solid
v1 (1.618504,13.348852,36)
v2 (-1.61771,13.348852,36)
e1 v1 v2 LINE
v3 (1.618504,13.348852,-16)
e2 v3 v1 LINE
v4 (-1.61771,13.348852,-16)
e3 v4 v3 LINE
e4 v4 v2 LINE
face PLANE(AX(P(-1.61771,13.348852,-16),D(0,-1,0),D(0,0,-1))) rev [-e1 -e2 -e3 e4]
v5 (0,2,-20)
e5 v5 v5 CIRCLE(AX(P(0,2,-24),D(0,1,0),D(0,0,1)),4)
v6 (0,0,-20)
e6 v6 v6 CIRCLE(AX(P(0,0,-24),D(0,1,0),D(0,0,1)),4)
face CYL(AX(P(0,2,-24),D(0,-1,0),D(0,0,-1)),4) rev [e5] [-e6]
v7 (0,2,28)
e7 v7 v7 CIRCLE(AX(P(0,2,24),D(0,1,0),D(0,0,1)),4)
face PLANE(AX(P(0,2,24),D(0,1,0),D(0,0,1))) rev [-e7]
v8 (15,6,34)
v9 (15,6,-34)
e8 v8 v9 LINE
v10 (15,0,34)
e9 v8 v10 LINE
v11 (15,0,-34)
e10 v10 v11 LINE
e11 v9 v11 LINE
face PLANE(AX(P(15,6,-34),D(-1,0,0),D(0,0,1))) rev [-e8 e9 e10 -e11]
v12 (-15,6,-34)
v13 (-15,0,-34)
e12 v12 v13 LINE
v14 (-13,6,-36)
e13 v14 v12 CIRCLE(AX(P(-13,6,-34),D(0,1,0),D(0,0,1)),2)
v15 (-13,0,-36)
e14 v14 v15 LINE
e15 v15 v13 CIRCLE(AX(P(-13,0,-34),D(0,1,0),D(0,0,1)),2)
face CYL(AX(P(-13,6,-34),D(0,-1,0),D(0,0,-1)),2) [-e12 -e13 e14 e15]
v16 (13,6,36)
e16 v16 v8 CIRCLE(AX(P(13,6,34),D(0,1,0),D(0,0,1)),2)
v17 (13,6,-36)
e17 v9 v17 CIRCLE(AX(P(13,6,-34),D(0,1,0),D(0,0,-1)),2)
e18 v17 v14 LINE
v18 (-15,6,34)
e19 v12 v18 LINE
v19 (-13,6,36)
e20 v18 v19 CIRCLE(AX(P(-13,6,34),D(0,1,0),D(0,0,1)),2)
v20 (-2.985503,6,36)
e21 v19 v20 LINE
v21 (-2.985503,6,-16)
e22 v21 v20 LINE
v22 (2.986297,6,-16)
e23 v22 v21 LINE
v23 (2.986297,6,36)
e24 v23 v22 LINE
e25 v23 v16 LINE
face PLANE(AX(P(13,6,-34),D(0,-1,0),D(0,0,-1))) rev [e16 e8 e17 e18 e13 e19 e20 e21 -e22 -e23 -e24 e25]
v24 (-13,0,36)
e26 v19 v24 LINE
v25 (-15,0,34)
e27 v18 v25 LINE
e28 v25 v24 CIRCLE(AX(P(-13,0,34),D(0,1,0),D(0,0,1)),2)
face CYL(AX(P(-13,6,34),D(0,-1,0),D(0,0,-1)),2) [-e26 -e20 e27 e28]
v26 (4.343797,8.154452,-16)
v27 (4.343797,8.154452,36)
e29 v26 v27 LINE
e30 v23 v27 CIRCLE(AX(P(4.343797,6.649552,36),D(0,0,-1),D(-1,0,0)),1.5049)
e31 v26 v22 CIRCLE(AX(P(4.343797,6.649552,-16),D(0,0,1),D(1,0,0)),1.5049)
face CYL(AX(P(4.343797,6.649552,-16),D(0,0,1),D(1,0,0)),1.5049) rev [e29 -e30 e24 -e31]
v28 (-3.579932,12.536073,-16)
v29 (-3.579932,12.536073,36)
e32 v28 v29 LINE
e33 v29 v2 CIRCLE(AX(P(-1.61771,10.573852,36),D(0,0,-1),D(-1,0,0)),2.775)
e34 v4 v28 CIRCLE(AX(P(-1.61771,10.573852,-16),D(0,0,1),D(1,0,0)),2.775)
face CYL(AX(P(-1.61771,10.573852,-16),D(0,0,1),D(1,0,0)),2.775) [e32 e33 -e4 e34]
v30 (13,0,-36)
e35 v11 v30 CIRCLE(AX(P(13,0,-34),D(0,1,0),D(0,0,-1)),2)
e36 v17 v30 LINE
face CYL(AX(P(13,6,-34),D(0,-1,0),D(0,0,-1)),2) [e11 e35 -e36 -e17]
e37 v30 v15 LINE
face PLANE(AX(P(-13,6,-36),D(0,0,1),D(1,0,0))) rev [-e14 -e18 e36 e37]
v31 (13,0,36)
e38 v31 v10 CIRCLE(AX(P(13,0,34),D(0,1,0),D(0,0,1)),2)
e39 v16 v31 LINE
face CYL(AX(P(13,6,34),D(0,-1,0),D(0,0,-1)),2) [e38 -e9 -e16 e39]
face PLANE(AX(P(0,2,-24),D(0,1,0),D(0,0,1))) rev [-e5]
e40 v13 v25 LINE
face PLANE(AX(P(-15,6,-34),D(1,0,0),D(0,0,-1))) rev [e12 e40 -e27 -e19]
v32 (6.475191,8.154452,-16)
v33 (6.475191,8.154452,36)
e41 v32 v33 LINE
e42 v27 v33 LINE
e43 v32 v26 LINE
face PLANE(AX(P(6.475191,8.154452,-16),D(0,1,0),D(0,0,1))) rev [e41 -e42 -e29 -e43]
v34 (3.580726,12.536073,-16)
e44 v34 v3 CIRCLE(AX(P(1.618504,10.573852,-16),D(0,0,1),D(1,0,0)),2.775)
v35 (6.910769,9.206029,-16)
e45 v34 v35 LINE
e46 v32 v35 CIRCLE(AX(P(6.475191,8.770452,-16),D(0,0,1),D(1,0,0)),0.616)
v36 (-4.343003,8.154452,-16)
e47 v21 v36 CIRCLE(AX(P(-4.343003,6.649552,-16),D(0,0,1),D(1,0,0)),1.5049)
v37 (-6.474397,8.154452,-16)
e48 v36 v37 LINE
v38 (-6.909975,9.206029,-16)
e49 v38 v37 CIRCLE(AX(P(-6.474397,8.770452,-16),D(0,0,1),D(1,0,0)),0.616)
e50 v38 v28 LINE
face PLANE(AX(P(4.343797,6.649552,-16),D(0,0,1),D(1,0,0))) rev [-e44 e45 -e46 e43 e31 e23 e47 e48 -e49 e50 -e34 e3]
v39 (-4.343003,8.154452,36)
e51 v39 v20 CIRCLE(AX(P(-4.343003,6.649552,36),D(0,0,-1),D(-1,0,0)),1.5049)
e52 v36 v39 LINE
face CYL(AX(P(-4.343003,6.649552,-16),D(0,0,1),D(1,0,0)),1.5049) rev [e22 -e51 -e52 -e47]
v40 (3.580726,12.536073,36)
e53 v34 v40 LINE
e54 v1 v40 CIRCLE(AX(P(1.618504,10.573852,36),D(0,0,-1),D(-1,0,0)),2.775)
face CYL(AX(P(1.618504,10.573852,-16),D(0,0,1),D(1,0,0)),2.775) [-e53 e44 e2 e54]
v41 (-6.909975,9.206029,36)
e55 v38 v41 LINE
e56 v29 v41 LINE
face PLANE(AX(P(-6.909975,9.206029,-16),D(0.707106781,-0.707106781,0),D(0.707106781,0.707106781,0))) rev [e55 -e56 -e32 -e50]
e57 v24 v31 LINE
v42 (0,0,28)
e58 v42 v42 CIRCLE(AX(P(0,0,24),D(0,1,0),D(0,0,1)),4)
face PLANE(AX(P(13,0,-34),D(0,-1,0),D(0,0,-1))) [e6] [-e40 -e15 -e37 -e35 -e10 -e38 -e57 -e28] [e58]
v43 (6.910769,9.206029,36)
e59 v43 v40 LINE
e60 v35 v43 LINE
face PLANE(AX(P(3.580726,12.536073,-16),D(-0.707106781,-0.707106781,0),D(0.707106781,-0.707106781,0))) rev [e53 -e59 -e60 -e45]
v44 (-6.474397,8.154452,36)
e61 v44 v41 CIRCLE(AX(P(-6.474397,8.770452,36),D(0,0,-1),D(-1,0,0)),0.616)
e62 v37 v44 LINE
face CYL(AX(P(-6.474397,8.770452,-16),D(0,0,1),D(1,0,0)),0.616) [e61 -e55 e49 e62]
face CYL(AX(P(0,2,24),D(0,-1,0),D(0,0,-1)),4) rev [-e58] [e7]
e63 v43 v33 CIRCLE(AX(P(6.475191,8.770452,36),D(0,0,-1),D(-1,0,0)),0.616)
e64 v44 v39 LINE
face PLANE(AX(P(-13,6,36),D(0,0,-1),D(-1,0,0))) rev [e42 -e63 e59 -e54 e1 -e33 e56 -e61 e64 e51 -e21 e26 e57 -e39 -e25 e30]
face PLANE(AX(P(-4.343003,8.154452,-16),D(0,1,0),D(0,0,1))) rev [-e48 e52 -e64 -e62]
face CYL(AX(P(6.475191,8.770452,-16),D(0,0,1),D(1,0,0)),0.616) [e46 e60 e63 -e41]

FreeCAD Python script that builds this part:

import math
import FreeCAD as App
import Part
import Sketcher

V = App.Vector

doc = App.newDocument("Part")
params = doc.addObject("Spreadsheet::Sheet", "Params")
for row, (alias, value) in enumerate([
    ("sketch1_radius", "2 mm"),
    ("sketch1_width", "26 mm"),
    ("sketch1_height", "68 mm"),
    ("pad1_length", "6 mm"),
    ("sketch2_diameter", "8 mm"),
    ("pocket1_length", "2 mm"),
    ("sketch3_height", "1.2 mm"),
    ("pad2_length", "36 mm"),
    ("pad2_length2", "16 mm"),
], start=1):
    params.set(f"A{row}", alias)
    params.set(f"B{row}", "=" + value)
    params.setAlias(f"B{row}", alias)

body = doc.addObject("PartDesign::Body", "Body")

sketch1 = body.newObject("Sketcher::SketchObject", "Sketch")
sketch1.AttachmentSupport = (doc.getObject("XZ_Plane"), [""])
sketch1.MapMode = "FlatFace"
sketch1.addGeometry([
    Part.LineSegment(V(13, -36, 0), V(-13, -36, 0)),
    Part.ArcOfCircle(Part.Circle(V(-13, -34, 0), V(0, 0, 1), 2), math.radians(-180), math.radians(-90)),
    Part.LineSegment(V(-15, -34, 0), V(-15, 34, 0)),
    Part.ArcOfCircle(Part.Circle(V(-13, 34, 0), V(0, 0, 1), 2), math.radians(90), math.radians(180)),
    Part.LineSegment(V(-13, 36, 0), V(13, 36, 0)),
    Part.ArcOfCircle(Part.Circle(V(13, 34, 0), V(0, 0, 1), 2), math.radians(0), math.radians(90)),
    Part.LineSegment(V(15, 34, 0), V(15, -34, 0)),
    Part.ArcOfCircle(Part.Circle(V(13, -34, 0), V(0, 0, 1), 2), math.radians(-90), math.radians(0)),
], False)
sketch1.addConstraint([
    Sketcher.Constraint("Tangent", 0, 2, 1, 2),
    Sketcher.Constraint("Tangent", 1, 1, 2, 1),
    Sketcher.Constraint("Tangent", 2, 2, 3, 2),
    Sketcher.Constraint("Tangent", 3, 1, 4, 1),
    Sketcher.Constraint("Tangent", 4, 2, 5, 2),
    Sketcher.Constraint("Tangent", 5, 1, 6, 1),
    Sketcher.Constraint("Tangent", 6, 2, 7, 2),
    Sketcher.Constraint("Tangent", 7, 1, 0, 1),
    Sketcher.Constraint("Horizontal", 0),
    Sketcher.Constraint("Vertical", 2),
    Sketcher.Constraint("Horizontal", 4),
    Sketcher.Constraint("Vertical", 6),
    Sketcher.Constraint("Equal", 1, 3),
    Sketcher.Constraint("Equal", 3, 5),
    Sketcher.Constraint("Equal", 5, 7),
    Sketcher.Constraint("Symmetric", 1, 3, 5, 3, -1, 1),
    Sketcher.Constraint("Radius", 1, 2.0),
    Sketcher.Constraint("DistanceX", 0, 2, 0, 1, 26.0),
    Sketcher.Constraint("DistanceY", 2, 1, 2, 2, 68.0),
])
sketch1.setExpression("Constraints[16]", "Params.sketch1_radius")
sketch1.setExpression("Constraints[17]", "Params.sketch1_width")
sketch1.setExpression("Constraints[18]", "Params.sketch1_height")
pad1 = body.newObject("PartDesign::Pad", "Pad")
pad1.Profile = sketch1
pad1.setExpression("Length", "Params.pad1_length")
pad1.Reversed = True

sketch2 = body.newObject("Sketcher::SketchObject", "Sketch001")
sketch2.AttachmentSupport = (doc.getObject("XZ_Plane"), [""])
sketch2.MapMode = "FlatFace"
sketch2.addGeometry([
    Part.Circle(V(0, -24, 0), V(0, 0, 1), 4),
    Part.Circle(V(0, 24, 0), V(0, 0, 1), 4),
], False)
sketch2.addConstraint([
    Sketcher.Constraint("Equal", 0, 1),
    Sketcher.Constraint("Symmetric", 0, 3, 1, 3, -1, 1),
    Sketcher.Constraint("PointOnObject", 0, 3, -2),
    Sketcher.Constraint("Diameter", 0, 8.0),
    Sketcher.Constraint("DistanceY", 0, 3, -1, 1, 24.0),
])
sketch2.setExpression("Constraints[3]", "Params.sketch2_diameter")
pocket1 = body.newObject("PartDesign::Pocket", "Pocket")
pocket1.Profile = sketch2
pocket1.setExpression("Length", "Params.pocket1_length")

sketch3 = body.newObject("Sketcher::SketchObject", "Sketch002")
sketch3.AttachmentSupport = (doc.getObject("XY_Plane"), [""])
sketch3.MapMode = "FlatFace"
sketch3.addGeometry([
    Part.LineSegment(V(-4.3, 5.1, 0), V(-10.9, 5.1, 0)),
    Part.LineSegment(V(-10.9, 5.1, 0), V(-10.9, 3.9, 0)),
    Part.LineSegment(V(-10.9, 3.9, 0), V(10.9, 3.9, 0)),
    Part.LineSegment(V(10.9, 3.9, 0), V(10.9, 5.1, 0)),
    Part.LineSegment(V(10.9, 5.1, 0), V(4.3, 5.1, 0)),
    Part.ArcOfCircle(Part.Circle(V(4.3, 6.6, 0), V(0, 0, 1), 1.5), math.radians(90), math.radians(270)),
    Part.LineSegment(V(4.3, 8.2, 0), V(6.5, 8.2, 0)),
    Part.ArcOfCircle(Part.Circle(V(6.5, 8.8, 0), V(0, 0, 1), 0.6), math.radians(-90), math.radians(45)),
    Part.LineSegment(V(6.9, 9.2, 0), V(3.6, 12.5, 0)),
    Part.ArcOfCircle(Part.Circle(V(1.6, 10.6, 0), V(0, 0, 1), 2.8), math.radians(45), math.radians(90)),
    Part.LineSegment(V(1.6, 13.3, 0), V(-1.6, 13.3, 0)),
    Part.ArcOfCircle(Part.Circle(V(-1.6, 10.6, 0), V(0, 0, 1), 2.8), math.radians(90), math.radians(135)),
    Part.LineSegment(V(-3.6, 12.5, 0), V(-6.9, 9.2, 0)),
    Part.ArcOfCircle(Part.Circle(V(-6.5, 8.8, 0), V(0, 0, 1), 0.6), math.radians(135), math.radians(270)),
    Part.LineSegment(V(-6.5, 8.2, 0), V(-4.3, 8.2, 0)),
    Part.ArcOfCircle(Part.Circle(V(-4.3, 6.6, 0), V(0, 0, 1), 1.5), math.radians(-90), math.radians(90)),
], False)
sketch3.addConstraint([
    Sketcher.Constraint("Coincident", 0, 2, 1, 1),
    Sketcher.Constraint("Coincident", 1, 2, 2, 1),
    Sketcher.Constraint("Coincident", 2, 2, 3, 1),
    Sketcher.Constraint("Coincident", 3, 2, 4, 1),
    Sketcher.Constraint("Tangent", 4, 2, 5, 2),
    Sketcher.Constraint("Tangent", 5, 1, 6, 1),
    Sketcher.Constraint("Tangent", 6, 2, 7, 1),
    Sketcher.Constraint("Tangent", 7, 2, 8, 1),
    Sketcher.Constraint("Tangent", 8, 2, 9, 1),
    Sketcher.Constraint("Tangent", 9, 2, 10, 1),
    Sketcher.Constraint("Tangent", 10, 2, 11, 1),
    Sketcher.Constraint("Tangent", 11, 2, 12, 1),
    Sketcher.Constraint("Tangent", 12, 2, 13, 1),
    Sketcher.Constraint("Tangent", 13, 2, 14, 1),
    Sketcher.Constraint("Tangent", 14, 2, 15, 2),
    Sketcher.Constraint("Tangent", 15, 1, 0, 1),
    Sketcher.Constraint("Horizontal", 0),
    Sketcher.Constraint("Vertical", 1),
    Sketcher.Constraint("Horizontal", 2),
    Sketcher.Constraint("Vertical", 3),
    Sketcher.Constraint("Horizontal", 4),
    Sketcher.Constraint("Horizontal", 6),
    Sketcher.Constraint("Horizontal", 10),
    Sketcher.Constraint("Horizontal", 14),
    Sketcher.Constraint("Equal", 9, 11),
    Sketcher.Constraint("Equal", 7, 13),
    Sketcher.Constraint("Equal", 5, 15),
    Sketcher.Constraint("Perpendicular", 8, 12),
    Sketcher.Constraint("Horizontal", 7, 3, 13, 3),
    Sketcher.Constraint("Horizontal", 8, 2, 11, 2),
    Sketcher.Constraint("Equal", 0, 4),
    Sketcher.Constraint("Equal", 6, 14),
    Sketcher.Constraint("DistanceY", 1, 2, 1, 1, 1.2),
    Sketcher.Constraint("Radius", 7, 0.616),
    Sketcher.Constraint("Radius", 9, 2.775),
    Sketcher.Constraint("Radius", 5, 1.5049),
    Sketcher.Constraint("DistanceY", 5, 3, 9, 3, 3.9243),
    Sketcher.Constraint("DistanceX", 11, 3, 7, 3, 8.092902),
    Sketcher.Constraint("DistanceX", 15, 3, 5, 3, 8.6868),
    Sketcher.Constraint("DistanceX", 0, 2, 0, 1, 6.573684),
    Sketcher.Constraint("DistanceY", -1, 1, 5, 3, 6.649552),
    Sketcher.Constraint("DistanceX", -1, 1, 7, 3, 6.475191),
])
sketch3.setExpression("Constraints[32]", "Params.sketch3_height")
pad2 = body.newObject("PartDesign::Pad", "Pad001")
pad2.Profile = sketch3
pad2.Type = "TwoLengths"
pad2.setExpression("Length", "Params.pad2_length")
pad2.setExpression("Length2", "Params.pad2_length2")

doc.recompute()
